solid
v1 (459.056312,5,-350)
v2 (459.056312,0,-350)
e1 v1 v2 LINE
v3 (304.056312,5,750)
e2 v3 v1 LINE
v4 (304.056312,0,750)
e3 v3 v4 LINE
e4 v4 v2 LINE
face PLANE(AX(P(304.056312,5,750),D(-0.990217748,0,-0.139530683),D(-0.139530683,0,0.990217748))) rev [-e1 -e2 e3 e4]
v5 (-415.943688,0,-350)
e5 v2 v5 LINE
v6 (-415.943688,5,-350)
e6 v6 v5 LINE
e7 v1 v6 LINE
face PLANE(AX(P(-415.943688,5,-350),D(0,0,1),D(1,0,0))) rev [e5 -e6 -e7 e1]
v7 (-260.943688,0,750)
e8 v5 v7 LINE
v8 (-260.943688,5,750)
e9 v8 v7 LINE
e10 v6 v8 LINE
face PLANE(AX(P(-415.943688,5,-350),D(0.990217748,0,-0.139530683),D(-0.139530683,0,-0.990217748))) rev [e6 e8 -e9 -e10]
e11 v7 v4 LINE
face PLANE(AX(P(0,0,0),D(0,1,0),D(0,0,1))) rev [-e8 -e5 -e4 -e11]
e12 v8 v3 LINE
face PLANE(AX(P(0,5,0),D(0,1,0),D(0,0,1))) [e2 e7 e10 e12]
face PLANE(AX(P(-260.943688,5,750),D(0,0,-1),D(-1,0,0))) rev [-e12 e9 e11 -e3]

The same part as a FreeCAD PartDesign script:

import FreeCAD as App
import Part
import Sketcher
from FreeCAD import Vector
Q = App.Units.Quantity


def add_polygon(sketch, points):
    """Adds a closed chain of lines whose ends are joined by coincident constraints."""
    first, n = sketch.GeometryCount, len(points)
    for a, b in zip(points, points[1:] + points[:1]):
        sketch.addGeometry(Part.LineSegment(App.Vector(*a, 0), App.Vector(*b, 0)), False)
    for i in range(n):
        sketch.addConstraint(Sketcher.Constraint("Coincident", first + i, 2, first + (i + 1) % n, 1))

doc = App.newDocument("Part")
params = doc.addObject("Spreadsheet::Sheet", "Params")
for row, (alias, value) in enumerate([
    ("sketch1_width", "565 mm"),
    ("sketch1_width2", "875 mm"),
    ("pad1_length", "5 mm"),
], start=1):
    params.set(f"A{row}", alias)
    params.set(f"B{row}", "=" + value)
    params.setAlias(f"B{row}", alias)

body = doc.addObject("PartDesign::Body", "Body")

# Sketch on XZ plane
sketch1 = body.newObject("Sketcher::SketchObject", "Sketch")
sketch1.AttachmentSupport = (doc.getObject("XZ_Plane"), [""])
sketch1.MapMode = "FlatFace"
add_polygon(sketch1, [(-416, -350), (-261, 750), (304, 750), (459, -350)])  # lines 0-3
sketch1.addConstraint([
    Sketcher.Constraint("Horizontal", 1),
    Sketcher.Constraint("Horizontal", 3),
    Sketcher.Constraint("Equal", 0, 2),
    Sketcher.Constraint("DistanceX", 1, 1, 1, 2, Q("565 mm")),
    Sketcher.Constraint("DistanceX", 3, 2, 3, 1, Q("875 mm")),
    Sketcher.Constraint("DistanceY", -1, 1, 0, 2, Q("750 mm")),
    Sketcher.Constraint("DistanceY", 2, 2, -1, 1, Q("350 mm")),
    Sketcher.Constraint("DistanceX", 0, 2, -1, 1, Q("260.943688 mm")),
])
sketch1.setExpression("Constraints[7]", "Params.sketch1_width")
sketch1.setExpression("Constraints[8]", "Params.sketch1_width2")
pad1 = body.newObject("PartDesign::Pad", "Pad")
pad1.Profile = sketch1
pad1.setExpression("Length", "Params.pad1_length")
pad1.Reversed = True

doc.recompute()
